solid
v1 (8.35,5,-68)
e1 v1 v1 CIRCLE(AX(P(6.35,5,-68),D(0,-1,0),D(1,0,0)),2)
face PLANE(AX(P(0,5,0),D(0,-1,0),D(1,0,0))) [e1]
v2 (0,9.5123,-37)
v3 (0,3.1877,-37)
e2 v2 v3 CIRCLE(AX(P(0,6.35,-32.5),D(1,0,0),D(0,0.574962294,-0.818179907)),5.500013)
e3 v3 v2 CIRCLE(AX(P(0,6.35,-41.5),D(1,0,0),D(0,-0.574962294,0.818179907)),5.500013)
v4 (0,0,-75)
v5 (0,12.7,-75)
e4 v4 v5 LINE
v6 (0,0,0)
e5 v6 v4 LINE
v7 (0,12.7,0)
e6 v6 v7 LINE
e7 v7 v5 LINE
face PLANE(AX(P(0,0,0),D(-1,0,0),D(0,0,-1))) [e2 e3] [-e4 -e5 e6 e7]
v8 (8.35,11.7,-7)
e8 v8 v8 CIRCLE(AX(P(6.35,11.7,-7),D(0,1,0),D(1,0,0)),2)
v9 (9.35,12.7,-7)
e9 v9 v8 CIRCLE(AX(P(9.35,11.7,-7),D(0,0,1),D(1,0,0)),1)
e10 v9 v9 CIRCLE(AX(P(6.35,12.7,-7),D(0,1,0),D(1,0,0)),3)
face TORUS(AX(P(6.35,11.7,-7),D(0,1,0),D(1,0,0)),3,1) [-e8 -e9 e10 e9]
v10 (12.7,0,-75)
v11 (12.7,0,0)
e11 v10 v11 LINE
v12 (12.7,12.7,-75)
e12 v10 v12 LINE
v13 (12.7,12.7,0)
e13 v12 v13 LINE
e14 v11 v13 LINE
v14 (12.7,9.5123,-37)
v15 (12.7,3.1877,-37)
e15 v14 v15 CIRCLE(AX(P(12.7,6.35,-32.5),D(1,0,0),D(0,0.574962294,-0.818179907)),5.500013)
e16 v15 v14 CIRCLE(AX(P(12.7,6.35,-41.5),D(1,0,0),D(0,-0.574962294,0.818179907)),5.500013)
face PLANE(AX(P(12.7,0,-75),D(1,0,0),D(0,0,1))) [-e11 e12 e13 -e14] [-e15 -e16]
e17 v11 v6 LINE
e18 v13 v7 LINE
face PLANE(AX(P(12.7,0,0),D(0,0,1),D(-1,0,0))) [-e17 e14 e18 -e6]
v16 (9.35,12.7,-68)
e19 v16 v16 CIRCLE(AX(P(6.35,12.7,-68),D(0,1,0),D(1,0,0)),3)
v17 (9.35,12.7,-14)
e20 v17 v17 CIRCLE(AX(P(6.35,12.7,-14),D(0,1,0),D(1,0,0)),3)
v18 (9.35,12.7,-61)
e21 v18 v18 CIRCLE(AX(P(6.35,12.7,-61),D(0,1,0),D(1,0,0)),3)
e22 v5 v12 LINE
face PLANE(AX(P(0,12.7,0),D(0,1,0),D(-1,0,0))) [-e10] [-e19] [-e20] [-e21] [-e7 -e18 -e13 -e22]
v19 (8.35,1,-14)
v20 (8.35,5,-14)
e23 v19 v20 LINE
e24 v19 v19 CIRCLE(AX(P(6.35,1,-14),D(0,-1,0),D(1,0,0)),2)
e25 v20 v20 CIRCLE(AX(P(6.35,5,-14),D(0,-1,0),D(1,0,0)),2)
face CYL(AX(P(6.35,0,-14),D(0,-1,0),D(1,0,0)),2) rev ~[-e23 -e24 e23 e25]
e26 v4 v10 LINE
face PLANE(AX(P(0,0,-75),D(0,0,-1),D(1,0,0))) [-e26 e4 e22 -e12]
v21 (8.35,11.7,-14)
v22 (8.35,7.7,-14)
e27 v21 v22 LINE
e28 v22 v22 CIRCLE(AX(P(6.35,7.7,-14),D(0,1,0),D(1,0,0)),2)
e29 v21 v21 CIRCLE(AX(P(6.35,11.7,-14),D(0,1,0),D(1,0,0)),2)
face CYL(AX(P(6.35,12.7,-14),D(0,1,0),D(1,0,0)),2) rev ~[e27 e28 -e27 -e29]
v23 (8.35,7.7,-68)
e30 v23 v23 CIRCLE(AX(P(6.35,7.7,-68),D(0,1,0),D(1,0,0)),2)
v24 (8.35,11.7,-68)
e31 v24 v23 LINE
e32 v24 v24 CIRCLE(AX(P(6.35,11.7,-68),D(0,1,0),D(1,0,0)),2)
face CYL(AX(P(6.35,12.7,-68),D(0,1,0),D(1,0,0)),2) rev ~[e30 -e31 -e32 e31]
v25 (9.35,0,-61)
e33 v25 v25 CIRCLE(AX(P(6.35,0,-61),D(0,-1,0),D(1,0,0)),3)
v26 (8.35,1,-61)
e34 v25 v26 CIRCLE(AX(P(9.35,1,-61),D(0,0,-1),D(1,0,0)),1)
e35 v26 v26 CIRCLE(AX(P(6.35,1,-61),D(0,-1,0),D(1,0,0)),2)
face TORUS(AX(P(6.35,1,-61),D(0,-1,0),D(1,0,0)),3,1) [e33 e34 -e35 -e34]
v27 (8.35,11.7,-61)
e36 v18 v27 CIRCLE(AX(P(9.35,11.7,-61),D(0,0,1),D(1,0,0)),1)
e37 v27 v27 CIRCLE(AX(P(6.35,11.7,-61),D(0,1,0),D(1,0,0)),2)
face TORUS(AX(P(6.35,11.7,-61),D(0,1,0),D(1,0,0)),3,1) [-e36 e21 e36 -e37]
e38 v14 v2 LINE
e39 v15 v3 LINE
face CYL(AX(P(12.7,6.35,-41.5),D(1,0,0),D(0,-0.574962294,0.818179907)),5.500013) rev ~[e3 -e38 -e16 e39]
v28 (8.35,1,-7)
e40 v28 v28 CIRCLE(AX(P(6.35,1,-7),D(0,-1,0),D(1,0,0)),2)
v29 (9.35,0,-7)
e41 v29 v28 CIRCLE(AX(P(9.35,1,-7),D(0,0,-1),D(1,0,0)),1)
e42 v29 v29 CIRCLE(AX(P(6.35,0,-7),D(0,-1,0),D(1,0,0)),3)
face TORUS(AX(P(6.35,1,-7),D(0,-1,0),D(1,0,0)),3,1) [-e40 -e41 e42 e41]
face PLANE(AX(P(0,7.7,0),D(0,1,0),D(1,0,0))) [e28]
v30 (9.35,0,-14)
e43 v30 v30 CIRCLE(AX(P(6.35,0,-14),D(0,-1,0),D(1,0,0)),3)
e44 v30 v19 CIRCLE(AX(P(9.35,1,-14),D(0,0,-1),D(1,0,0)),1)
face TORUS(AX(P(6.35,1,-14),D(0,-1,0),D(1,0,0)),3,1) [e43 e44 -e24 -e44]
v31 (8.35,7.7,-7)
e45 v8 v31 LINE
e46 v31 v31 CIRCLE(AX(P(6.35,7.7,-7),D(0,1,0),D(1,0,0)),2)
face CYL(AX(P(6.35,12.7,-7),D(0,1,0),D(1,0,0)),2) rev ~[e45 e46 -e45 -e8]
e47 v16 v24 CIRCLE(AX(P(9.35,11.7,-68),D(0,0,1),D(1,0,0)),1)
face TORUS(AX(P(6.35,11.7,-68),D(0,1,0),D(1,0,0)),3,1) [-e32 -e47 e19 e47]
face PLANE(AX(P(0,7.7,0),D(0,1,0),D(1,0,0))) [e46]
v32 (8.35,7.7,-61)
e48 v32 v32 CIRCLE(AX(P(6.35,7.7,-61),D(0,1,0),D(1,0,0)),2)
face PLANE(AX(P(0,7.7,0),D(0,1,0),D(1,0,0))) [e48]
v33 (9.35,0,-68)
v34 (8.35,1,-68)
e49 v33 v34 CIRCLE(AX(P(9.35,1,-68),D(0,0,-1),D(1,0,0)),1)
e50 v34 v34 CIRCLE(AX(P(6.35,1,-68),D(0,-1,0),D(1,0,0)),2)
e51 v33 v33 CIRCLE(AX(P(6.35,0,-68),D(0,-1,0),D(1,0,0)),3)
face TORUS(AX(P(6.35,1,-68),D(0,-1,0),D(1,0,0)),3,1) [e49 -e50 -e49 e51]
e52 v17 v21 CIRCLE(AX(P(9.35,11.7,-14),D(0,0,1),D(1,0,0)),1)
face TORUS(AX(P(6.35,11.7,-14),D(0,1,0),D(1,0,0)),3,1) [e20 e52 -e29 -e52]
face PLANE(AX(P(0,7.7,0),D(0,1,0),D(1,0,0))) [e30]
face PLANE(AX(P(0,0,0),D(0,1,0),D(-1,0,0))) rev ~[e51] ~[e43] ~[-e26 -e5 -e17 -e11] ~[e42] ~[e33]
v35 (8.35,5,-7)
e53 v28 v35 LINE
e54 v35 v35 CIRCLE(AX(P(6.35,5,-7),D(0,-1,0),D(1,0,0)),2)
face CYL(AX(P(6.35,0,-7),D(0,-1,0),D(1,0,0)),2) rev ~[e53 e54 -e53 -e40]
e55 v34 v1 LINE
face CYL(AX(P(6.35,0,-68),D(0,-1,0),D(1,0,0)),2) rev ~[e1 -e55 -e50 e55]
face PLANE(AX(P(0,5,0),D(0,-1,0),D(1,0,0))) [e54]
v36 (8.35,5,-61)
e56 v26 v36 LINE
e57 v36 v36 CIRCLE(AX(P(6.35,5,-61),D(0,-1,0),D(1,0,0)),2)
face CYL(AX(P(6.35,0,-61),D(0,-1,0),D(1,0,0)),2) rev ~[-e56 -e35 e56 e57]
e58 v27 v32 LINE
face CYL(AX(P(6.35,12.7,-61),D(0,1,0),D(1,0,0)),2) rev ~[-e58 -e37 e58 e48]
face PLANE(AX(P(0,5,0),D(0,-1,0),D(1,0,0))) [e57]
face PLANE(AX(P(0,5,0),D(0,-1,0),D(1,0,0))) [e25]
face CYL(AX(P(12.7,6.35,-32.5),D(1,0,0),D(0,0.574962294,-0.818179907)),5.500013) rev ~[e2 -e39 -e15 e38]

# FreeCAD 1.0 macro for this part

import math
import FreeCAD as App
import Part
import Sketcher
from FreeCAD import Vector


def edges_at(feature, points):
    """Names of the edges that pass closest to the given points."""
    edges = feature.Shape.Edges
    near = lambda p: min(range(len(edges)), key=lambda i: edges[i].distToShape(Part.Vertex(*p))[0])
    return sorted({f"Edge{near(p) + 1}" for p in points})

doc = App.newDocument("Part")
params = doc.addObject("Spreadsheet::Sheet", "Params")
for row, (alias, value) in enumerate([
    ("sketch1_height", "75 mm"),
    ("sketch1_width", "12.7 mm"),
    ("pad1_length", "12.7 mm"),
    ("sketch2_radius", "5.5 mm"),
    ("sketch3_diameter", "4 mm"),
    ("pocket2_length", "5 mm"),
    ("sketch4_diameter", "4 mm"),
    ("pocket3_length", "5 mm"),
    ("fillet_radius", "1 mm"),
], start=1):
    params.set(f"A{row}", alias)
    params.set(f"B{row}", "=" + value)
    params.setAlias(f"B{row}", alias)

body = doc.addObject("PartDesign::Body", "Body")

sketch1 = body.newObject("Sketcher::SketchObject", "Sketch")
sketch1.AttachmentSupport = (doc.getObject("XZ_Plane"), [""])
sketch1.MapMode = "FlatFace"
sketch1.addGeometry([
    Part.LineSegment(Vector(0, -75, 0), Vector(0, 0, 0)),
    Part.LineSegment(Vector(0, 0, 0), Vector(13, 0, 0)),
    Part.LineSegment(Vector(13, 0, 0), Vector(13, -75, 0)),
    Part.LineSegment(Vector(13, -75, 0), Vector(0, -75, 0)),
], False)
sketch1.addConstraint([
    Sketcher.Constraint("Coincident", 0, 2, 1, 1),
    Sketcher.Constraint("Coincident", 1, 2, 2, 1),
    Sketcher.Constraint("Coincident", 2, 2, 3, 1),
    Sketcher.Constraint("Coincident", 3, 2, 0, 1),
    Sketcher.Constraint("Vertical", 0),
    Sketcher.Constraint("Horizontal", 1),
    Sketcher.Constraint("Vertical", 2),
    Sketcher.Constraint("Horizontal", 3),
    Sketcher.Constraint("Coincident", 0, 2, -1, 1),
    Sketcher.Constraint("DistanceY", 0, 1, 0, 2, 75.0),
    Sketcher.Constraint("DistanceX", 1, 1, 1, 2, 12.7),
])
sketch1.setExpression("Constraints[9]", "Params.sketch1_height")
sketch1.setExpression("Constraints[10]", "Params.sketch1_width")
pad1 = body.newObject("PartDesign::Pad", "Pad")
pad1.Profile = sketch1
pad1.setExpression("Length", "Params.pad1_length")
pad1.Reversed = True

sketch2 = body.newObject("Sketcher::SketchObject", "Sketch001")
sketch2.AttachmentSupport = (doc.getObject("YZ_Plane"), [""])
sketch2.MapMode = "FlatFace"
sketch2.AttachmentOffset = App.Placement(Vector(0, 0, 12.7), App.Rotation())
sketch2.addGeometry([
    Part.ArcOfCircle(Part.Circle(Vector(6, -42, 0), Vector(0, 0, 1), 6), math.radians(125), math.radians(415)),
    Part.ArcOfCircle(Part.Circle(Vector(6, -32, 0), Vector(0, 0, 1), 6), math.radians(-55), math.radians(235)),
], False)
sketch2.addConstraint([
    Sketcher.Constraint("Coincident", 0, 1, 1, 2),
    Sketcher.Constraint("Coincident", 1, 1, 0, 2),
    Sketcher.Constraint("Equal", 0, 1),
    Sketcher.Constraint("Horizontal", 0, 1, 1, 1),
    Sketcher.Constraint("Radius", 0, 5.5),
    Sketcher.Constraint("DistanceY", 0, 1, -1, 1, 37.0),
    Sketcher.Constraint("DistanceY", 0, 3, 1, 3, 9.0),
    Sketcher.Constraint("DistanceX", -1, 1, 0, 3, 6.35),
])
sketch2.setExpression("Constraints[4]", "Params.sketch2_radius")
pocket1 = body.newObject("PartDesign::Pocket", "Pocket")
pocket1.Profile = sketch2
pocket1.Type = "ThroughAll"

sketch3 = body.newObject("Sketcher::SketchObject", "Sketch002")
sketch3.AttachmentSupport = (doc.getObject("XZ_Plane"), [""])
sketch3.MapMode = "FlatFace"
sketch3.AttachmentOffset = App.Placement(Vector(0, 0, -12.7), App.Rotation())
sketch3.addGeometry([
    Part.Circle(Vector(6.3, -14, 0), Vector(0, 0, 1), 2),
    Part.Circle(Vector(6.3, -7, 0), Vector(0, 0, 1), 2),
    Part.Circle(Vector(6.3, -68, 0), Vector(0, 0, 1), 2),
    Part.Circle(Vector(6.3, -61, 0), Vector(0, 0, 1), 2),
], False)
sketch3.addConstraint([
    Sketcher.Constraint("Equal", 0, 1),
    Sketcher.Constraint("Equal", 1, 2),
    Sketcher.Constraint("Equal", 2, 3),
    Sketcher.Constraint("Vertical", 0, 3, 1, 3),
    Sketcher.Constraint("Vertical", 1, 3, 2, 3),
    Sketcher.Constraint("Vertical", 2, 3, 3, 3),
    Sketcher.Constraint("Diameter", 0, 4.0),
    Sketcher.Constraint("DistanceY", 0, 3, -1, 1, 14.0),
    Sketcher.Constraint("DistanceY", 1, 3, -1, 1, 7.0),
    Sketcher.Constraint("DistanceY", 2, 3, -1, 1, 68.0),
    Sketcher.Constraint("DistanceY", 3, 3, -1, 1, 61.0),
    Sketcher.Constraint("DistanceX", -1, 1, 0, 3, 6.35),
])
sketch3.setExpression("Constraints[6]", "Params.sketch3_diameter")
pocket2 = body.newObject("PartDesign::Pocket", "Pocket001")
pocket2.Profile = sketch3
pocket2.setExpression("Length", "Params.pocket2_length")
pocket2.Reversed = True

sketch4 = body.newObject("Sketcher::SketchObject", "Sketch003")
sketch4.AttachmentSupport = (doc.getObject("XZ_Plane"), [""])
sketch4.MapMode = "FlatFace"
sketch4.addGeometry([
    Part.Circle(Vector(6.3, -14, 0), Vector(0, 0, 1), 2),
    Part.Circle(Vector(6.3, -7, 0), Vector(0, 0, 1), 2),
    Part.Circle(Vector(6.3, -68, 0), Vector(0, 0, 1), 2),
    Part.Circle(Vector(6.3, -61, 0), Vector(0, 0, 1), 2),
], False)
sketch4.addConstraint([
    Sketcher.Constraint("Equal", 0, 1),
    Sketcher.Constraint("Equal", 1, 2),
    Sketcher.Constraint("Equal", 2, 3),
    Sketcher.Constraint("Vertical", 0, 3, 1, 3),
    Sketcher.Constraint("Vertical", 1, 3, 2, 3),
    Sketcher.Constraint("Vertical", 2, 3, 3, 3),
    Sketcher.Constraint("Diameter", 0, 4.0),
    Sketcher.Constraint("DistanceY", 0, 3, -1, 1, 14.0),
    Sketcher.Constraint("DistanceY", 1, 3, -1, 1, 7.0),
    Sketcher.Constraint("DistanceY", 2, 3, -1, 1, 68.0),
    Sketcher.Constraint("DistanceY", 3, 3, -1, 1, 61.0),
    Sketcher.Constraint("DistanceX", -1, 1, 0, 3, 6.35),
])
sketch4.setExpression("Constraints[6]", "Params.sketch4_diameter")
pocket3 = body.newObject("PartDesign::Pocket", "Pocket002")
pocket3.Profile = sketch4
pocket3.setExpression("Length", "Params.pocket3_length")
doc.recompute()

fillet = body.newObject("PartDesign::Fillet", "Fillet")
fillet.Base = (pocket3, edges_at(pocket3, [
    (4.35, 0, -68),
    (4.35, 0, -61),
    (4.35, 0, -14),
    (4.35, 0, -7),
    (4.35, 12.7, -14),
    (4.35, 12.7, -7),
    (4.35, 12.7, -68),
    (4.35, 12.7, -61),
]))
fillet.setExpression("Radius", "Params.fillet_radius")

doc.recompute()
